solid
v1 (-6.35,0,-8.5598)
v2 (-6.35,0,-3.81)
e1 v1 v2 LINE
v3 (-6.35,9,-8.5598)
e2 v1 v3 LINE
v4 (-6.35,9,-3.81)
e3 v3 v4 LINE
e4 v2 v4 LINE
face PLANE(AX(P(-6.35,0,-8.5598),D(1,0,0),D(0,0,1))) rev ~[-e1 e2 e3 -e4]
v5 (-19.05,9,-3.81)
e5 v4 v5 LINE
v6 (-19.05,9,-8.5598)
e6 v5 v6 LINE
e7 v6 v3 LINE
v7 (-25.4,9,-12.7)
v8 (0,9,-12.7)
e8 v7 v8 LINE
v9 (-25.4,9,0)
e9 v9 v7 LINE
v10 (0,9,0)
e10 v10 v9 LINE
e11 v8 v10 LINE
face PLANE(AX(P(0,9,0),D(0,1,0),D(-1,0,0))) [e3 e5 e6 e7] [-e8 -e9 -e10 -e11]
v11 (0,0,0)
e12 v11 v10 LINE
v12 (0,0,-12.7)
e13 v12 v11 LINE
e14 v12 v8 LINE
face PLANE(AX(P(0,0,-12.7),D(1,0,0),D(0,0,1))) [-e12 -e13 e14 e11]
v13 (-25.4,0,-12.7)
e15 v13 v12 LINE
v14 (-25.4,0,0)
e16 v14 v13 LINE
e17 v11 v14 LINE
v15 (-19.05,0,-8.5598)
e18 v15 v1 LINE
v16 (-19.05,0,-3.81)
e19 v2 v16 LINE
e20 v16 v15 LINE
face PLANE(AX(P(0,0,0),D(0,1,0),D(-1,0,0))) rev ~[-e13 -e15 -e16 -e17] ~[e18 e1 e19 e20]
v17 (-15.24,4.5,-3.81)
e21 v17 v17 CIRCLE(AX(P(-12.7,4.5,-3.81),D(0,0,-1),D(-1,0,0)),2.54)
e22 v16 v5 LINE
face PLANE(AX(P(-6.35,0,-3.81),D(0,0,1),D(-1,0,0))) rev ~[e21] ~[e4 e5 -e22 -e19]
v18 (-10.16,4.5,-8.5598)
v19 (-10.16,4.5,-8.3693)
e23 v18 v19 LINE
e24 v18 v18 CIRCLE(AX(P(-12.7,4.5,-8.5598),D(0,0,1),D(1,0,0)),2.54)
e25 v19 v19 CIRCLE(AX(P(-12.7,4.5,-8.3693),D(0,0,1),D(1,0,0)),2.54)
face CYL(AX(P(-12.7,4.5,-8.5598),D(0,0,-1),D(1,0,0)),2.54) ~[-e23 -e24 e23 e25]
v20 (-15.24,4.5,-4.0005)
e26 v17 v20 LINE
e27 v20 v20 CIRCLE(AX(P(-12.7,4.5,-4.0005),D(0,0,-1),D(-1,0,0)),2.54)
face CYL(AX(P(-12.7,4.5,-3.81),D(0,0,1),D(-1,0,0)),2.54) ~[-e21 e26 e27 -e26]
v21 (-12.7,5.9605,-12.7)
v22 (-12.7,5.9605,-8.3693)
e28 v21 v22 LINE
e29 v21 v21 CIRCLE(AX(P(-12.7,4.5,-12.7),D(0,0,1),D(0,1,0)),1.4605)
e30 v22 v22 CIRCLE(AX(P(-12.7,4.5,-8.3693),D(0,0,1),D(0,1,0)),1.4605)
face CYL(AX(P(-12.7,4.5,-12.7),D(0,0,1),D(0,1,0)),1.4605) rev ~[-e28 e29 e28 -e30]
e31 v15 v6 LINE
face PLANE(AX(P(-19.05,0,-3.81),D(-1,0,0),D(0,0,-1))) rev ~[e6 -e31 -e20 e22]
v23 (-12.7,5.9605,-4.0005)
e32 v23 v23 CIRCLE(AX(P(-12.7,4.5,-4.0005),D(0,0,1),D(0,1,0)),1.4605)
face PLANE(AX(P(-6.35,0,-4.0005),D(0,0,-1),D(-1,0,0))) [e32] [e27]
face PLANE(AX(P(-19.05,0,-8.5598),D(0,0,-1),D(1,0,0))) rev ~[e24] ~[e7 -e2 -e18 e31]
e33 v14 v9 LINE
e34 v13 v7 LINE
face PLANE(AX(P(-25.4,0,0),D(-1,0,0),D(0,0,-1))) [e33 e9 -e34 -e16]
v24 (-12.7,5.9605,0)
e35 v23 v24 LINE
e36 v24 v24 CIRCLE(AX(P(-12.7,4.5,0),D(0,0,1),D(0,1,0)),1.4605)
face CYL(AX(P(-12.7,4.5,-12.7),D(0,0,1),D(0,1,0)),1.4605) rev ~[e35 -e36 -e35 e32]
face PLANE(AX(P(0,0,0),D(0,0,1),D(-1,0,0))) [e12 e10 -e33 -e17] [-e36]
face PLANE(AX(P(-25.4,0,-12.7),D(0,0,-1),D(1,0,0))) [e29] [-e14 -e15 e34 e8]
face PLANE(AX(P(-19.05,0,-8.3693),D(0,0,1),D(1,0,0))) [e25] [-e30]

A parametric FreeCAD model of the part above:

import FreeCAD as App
import Part
import Sketcher
Q = App.Units.Quantity


def add_polygon(sketch, points):
    """Adds a closed chain of lines whose ends are joined by coincident constraints."""
    first, n = sketch.GeometryCount, len(points)
    for a, b in zip(points, points[1:] + points[:1]):
        sketch.addGeometry(Part.LineSegment(App.Vector(*a, 0), App.Vector(*b, 0)), False)
    for i in range(n):
        sketch.addConstraint(Sketcher.Constraint("Coincident", first + i, 2, first + (i + 1) % n, 1))

doc = App.newDocument("Part")
body = doc.addObject("PartDesign::Body", "Body")

# Sketch on XZ plane
sketch1 = body.newObject("Sketcher::SketchObject", "Sketch")
sketch1.AttachmentSupport = (doc.getObject("XZ_Plane"), [""])
sketch1.MapMode = "FlatFace"
add_polygon(sketch1, [(-25.4, 0), (0, 0), (0, -12.7), (-25.4, -12.7)])  # lines 0-3
add_polygon(sketch1, [(-6.3, -8.6), (-6.3, -3.8), (-19.1, -3.8), (-19.1, -8.6)])  # lines 4-7
sketch1.addConstraint(Sketcher.Constraint("Horizontal", 0))
sketch1.addConstraint(Sketcher.Constraint("Vertical", 1))
sketch1.addConstraint(Sketcher.Constraint("Horizontal", 2))
sketch1.addConstraint(Sketcher.Constraint("Vertical", 3))
sketch1.addConstraint(Sketcher.Constraint("Vertical", 4))
sketch1.addConstraint(Sketcher.Constraint("Horizontal", 5))
sketch1.addConstraint(Sketcher.Constraint("Vertical", 6))
sketch1.addConstraint(Sketcher.Constraint("Horizontal", 7))
sketch1.addConstraint(Sketcher.Constraint("Coincident", 0, 2, -1, 1))
sketch1.addConstraint(Sketcher.Constraint("Equal", 7, 1))
sketch1.addConstraint(Sketcher.Constraint("DistanceX", 0, 1, 0, 2, Q("1 in")))
sketch1.addConstraint(Sketcher.Constraint("DistanceX", 5, 2, 5, 1, Q("0.5 in")))
sketch1.addConstraint(Sketcher.Constraint("DistanceY", 4, 1, 4, 2, Q("0.187 in")))
sketch1.addConstraint(Sketcher.Constraint("DistanceX", 4, 2, -1, 1, Q("0.25 in")))
sketch1.addConstraint(Sketcher.Constraint("DistanceY", 4, 2, -1, 1, Q("0.15 in")))
pad1 = body.newObject("PartDesign::Pad", "Pad")
pad1.Profile = sketch1
pad1.Length = 9
pad1.Reversed = True

# Sketch on XY plane
sketch2 = body.newObject("Sketcher::SketchObject", "Sketch001")
sketch2.AttachmentSupport = (doc.getObject("XY_Plane"), [""])
sketch2.MapMode = "FlatFace"
sketch2.AttachmentOffset = App.Placement(App.Vector(0, 0, -0.337 * 25.4), App.Rotation())
sketch2.addGeometry(Part.Circle(App.Vector(-12.7, 4.5, 0), App.Vector(0, 0, 1), 2.5), False)
sketch2.addConstraint(Sketcher.Constraint("Diameter", 0, Q("0.2 in")))
sketch2.addConstraint(Sketcher.Constraint("DistanceX", 0, 3, -1, 1, Q("0.5 in")))
sketch2.addConstraint(Sketcher.Constraint("DistanceY", -1, 1, 0, 3, Q("4.5 mm")))
pad2 = body.newObject("PartDesign::Pad", "Pad001")
pad2.Profile = sketch2
pad2.Length = Q("0.0075 in")

# Sketch on XY plane
sketch3 = body.newObject("Sketcher::SketchObject", "Sketch002")
sketch3.AttachmentSupport = (doc.getObject("XY_Plane"), [""])
sketch3.MapMode = "FlatFace"
sketch3.AttachmentOffset = App.Placement(App.Vector(0, 0, -0.15 * 25.4), App.Rotation())
sketch3.addGeometry(Part.Circle(App.Vector(-12.7, 4.5, 0), App.Vector(0, 0, 1), 2.5), False)
sketch3.addConstraint(Sketcher.Constraint("Diameter", 0, Q("0.2 in")))
sketch3.addConstraint(Sketcher.Constraint("DistanceX", 0, 3, -1, 1, Q("0.5 in")))
sketch3.addConstraint(Sketcher.Constraint("DistanceY", -1, 1, 0, 3, Q("4.5 mm")))
pad3 = body.newObject("PartDesign::Pad", "Pad002")
pad3.Profile = sketch3
pad3.Length = Q("0.0075 in")
pad3.Reversed = True

# Sketch on XY plane
sketch4 = body.newObject("Sketcher::SketchObject", "Sketch003")
sketch4.AttachmentSupport = (doc.getObject("XY_Plane"), [""])
sketch4.MapMode = "FlatFace"
sketch4.AttachmentOffset = App.Placement(App.Vector(0, 0, -0.5 * 25.4), App.Rotation())
sketch4.addGeometry(Part.Circle(App.Vector(-12.7, 4.5, 0), App.Vector(0, 0, 1), 1.5), False)
sketch4.addConstraint(Sketcher.Constraint("Diameter", 0, Q("0.115 in")))
sketch4.addConstraint(Sketcher.Constraint("DistanceX", 0, 3, -1, 1, Q("0.5 in")))
sketch4.addConstraint(Sketcher.Constraint("DistanceY", -1, 1, 0, 3, Q("4.5 mm")))
doc.recompute()
hole = body.newObject("PartDesign::Hole", "Hole")
hole.Profile = sketch4
hole.ThreadType = "None"
hole.Diameter = Q("0.115 in")
hole.DepthType = "ThroughAll"
hole.Reversed = True

doc.recompute()
